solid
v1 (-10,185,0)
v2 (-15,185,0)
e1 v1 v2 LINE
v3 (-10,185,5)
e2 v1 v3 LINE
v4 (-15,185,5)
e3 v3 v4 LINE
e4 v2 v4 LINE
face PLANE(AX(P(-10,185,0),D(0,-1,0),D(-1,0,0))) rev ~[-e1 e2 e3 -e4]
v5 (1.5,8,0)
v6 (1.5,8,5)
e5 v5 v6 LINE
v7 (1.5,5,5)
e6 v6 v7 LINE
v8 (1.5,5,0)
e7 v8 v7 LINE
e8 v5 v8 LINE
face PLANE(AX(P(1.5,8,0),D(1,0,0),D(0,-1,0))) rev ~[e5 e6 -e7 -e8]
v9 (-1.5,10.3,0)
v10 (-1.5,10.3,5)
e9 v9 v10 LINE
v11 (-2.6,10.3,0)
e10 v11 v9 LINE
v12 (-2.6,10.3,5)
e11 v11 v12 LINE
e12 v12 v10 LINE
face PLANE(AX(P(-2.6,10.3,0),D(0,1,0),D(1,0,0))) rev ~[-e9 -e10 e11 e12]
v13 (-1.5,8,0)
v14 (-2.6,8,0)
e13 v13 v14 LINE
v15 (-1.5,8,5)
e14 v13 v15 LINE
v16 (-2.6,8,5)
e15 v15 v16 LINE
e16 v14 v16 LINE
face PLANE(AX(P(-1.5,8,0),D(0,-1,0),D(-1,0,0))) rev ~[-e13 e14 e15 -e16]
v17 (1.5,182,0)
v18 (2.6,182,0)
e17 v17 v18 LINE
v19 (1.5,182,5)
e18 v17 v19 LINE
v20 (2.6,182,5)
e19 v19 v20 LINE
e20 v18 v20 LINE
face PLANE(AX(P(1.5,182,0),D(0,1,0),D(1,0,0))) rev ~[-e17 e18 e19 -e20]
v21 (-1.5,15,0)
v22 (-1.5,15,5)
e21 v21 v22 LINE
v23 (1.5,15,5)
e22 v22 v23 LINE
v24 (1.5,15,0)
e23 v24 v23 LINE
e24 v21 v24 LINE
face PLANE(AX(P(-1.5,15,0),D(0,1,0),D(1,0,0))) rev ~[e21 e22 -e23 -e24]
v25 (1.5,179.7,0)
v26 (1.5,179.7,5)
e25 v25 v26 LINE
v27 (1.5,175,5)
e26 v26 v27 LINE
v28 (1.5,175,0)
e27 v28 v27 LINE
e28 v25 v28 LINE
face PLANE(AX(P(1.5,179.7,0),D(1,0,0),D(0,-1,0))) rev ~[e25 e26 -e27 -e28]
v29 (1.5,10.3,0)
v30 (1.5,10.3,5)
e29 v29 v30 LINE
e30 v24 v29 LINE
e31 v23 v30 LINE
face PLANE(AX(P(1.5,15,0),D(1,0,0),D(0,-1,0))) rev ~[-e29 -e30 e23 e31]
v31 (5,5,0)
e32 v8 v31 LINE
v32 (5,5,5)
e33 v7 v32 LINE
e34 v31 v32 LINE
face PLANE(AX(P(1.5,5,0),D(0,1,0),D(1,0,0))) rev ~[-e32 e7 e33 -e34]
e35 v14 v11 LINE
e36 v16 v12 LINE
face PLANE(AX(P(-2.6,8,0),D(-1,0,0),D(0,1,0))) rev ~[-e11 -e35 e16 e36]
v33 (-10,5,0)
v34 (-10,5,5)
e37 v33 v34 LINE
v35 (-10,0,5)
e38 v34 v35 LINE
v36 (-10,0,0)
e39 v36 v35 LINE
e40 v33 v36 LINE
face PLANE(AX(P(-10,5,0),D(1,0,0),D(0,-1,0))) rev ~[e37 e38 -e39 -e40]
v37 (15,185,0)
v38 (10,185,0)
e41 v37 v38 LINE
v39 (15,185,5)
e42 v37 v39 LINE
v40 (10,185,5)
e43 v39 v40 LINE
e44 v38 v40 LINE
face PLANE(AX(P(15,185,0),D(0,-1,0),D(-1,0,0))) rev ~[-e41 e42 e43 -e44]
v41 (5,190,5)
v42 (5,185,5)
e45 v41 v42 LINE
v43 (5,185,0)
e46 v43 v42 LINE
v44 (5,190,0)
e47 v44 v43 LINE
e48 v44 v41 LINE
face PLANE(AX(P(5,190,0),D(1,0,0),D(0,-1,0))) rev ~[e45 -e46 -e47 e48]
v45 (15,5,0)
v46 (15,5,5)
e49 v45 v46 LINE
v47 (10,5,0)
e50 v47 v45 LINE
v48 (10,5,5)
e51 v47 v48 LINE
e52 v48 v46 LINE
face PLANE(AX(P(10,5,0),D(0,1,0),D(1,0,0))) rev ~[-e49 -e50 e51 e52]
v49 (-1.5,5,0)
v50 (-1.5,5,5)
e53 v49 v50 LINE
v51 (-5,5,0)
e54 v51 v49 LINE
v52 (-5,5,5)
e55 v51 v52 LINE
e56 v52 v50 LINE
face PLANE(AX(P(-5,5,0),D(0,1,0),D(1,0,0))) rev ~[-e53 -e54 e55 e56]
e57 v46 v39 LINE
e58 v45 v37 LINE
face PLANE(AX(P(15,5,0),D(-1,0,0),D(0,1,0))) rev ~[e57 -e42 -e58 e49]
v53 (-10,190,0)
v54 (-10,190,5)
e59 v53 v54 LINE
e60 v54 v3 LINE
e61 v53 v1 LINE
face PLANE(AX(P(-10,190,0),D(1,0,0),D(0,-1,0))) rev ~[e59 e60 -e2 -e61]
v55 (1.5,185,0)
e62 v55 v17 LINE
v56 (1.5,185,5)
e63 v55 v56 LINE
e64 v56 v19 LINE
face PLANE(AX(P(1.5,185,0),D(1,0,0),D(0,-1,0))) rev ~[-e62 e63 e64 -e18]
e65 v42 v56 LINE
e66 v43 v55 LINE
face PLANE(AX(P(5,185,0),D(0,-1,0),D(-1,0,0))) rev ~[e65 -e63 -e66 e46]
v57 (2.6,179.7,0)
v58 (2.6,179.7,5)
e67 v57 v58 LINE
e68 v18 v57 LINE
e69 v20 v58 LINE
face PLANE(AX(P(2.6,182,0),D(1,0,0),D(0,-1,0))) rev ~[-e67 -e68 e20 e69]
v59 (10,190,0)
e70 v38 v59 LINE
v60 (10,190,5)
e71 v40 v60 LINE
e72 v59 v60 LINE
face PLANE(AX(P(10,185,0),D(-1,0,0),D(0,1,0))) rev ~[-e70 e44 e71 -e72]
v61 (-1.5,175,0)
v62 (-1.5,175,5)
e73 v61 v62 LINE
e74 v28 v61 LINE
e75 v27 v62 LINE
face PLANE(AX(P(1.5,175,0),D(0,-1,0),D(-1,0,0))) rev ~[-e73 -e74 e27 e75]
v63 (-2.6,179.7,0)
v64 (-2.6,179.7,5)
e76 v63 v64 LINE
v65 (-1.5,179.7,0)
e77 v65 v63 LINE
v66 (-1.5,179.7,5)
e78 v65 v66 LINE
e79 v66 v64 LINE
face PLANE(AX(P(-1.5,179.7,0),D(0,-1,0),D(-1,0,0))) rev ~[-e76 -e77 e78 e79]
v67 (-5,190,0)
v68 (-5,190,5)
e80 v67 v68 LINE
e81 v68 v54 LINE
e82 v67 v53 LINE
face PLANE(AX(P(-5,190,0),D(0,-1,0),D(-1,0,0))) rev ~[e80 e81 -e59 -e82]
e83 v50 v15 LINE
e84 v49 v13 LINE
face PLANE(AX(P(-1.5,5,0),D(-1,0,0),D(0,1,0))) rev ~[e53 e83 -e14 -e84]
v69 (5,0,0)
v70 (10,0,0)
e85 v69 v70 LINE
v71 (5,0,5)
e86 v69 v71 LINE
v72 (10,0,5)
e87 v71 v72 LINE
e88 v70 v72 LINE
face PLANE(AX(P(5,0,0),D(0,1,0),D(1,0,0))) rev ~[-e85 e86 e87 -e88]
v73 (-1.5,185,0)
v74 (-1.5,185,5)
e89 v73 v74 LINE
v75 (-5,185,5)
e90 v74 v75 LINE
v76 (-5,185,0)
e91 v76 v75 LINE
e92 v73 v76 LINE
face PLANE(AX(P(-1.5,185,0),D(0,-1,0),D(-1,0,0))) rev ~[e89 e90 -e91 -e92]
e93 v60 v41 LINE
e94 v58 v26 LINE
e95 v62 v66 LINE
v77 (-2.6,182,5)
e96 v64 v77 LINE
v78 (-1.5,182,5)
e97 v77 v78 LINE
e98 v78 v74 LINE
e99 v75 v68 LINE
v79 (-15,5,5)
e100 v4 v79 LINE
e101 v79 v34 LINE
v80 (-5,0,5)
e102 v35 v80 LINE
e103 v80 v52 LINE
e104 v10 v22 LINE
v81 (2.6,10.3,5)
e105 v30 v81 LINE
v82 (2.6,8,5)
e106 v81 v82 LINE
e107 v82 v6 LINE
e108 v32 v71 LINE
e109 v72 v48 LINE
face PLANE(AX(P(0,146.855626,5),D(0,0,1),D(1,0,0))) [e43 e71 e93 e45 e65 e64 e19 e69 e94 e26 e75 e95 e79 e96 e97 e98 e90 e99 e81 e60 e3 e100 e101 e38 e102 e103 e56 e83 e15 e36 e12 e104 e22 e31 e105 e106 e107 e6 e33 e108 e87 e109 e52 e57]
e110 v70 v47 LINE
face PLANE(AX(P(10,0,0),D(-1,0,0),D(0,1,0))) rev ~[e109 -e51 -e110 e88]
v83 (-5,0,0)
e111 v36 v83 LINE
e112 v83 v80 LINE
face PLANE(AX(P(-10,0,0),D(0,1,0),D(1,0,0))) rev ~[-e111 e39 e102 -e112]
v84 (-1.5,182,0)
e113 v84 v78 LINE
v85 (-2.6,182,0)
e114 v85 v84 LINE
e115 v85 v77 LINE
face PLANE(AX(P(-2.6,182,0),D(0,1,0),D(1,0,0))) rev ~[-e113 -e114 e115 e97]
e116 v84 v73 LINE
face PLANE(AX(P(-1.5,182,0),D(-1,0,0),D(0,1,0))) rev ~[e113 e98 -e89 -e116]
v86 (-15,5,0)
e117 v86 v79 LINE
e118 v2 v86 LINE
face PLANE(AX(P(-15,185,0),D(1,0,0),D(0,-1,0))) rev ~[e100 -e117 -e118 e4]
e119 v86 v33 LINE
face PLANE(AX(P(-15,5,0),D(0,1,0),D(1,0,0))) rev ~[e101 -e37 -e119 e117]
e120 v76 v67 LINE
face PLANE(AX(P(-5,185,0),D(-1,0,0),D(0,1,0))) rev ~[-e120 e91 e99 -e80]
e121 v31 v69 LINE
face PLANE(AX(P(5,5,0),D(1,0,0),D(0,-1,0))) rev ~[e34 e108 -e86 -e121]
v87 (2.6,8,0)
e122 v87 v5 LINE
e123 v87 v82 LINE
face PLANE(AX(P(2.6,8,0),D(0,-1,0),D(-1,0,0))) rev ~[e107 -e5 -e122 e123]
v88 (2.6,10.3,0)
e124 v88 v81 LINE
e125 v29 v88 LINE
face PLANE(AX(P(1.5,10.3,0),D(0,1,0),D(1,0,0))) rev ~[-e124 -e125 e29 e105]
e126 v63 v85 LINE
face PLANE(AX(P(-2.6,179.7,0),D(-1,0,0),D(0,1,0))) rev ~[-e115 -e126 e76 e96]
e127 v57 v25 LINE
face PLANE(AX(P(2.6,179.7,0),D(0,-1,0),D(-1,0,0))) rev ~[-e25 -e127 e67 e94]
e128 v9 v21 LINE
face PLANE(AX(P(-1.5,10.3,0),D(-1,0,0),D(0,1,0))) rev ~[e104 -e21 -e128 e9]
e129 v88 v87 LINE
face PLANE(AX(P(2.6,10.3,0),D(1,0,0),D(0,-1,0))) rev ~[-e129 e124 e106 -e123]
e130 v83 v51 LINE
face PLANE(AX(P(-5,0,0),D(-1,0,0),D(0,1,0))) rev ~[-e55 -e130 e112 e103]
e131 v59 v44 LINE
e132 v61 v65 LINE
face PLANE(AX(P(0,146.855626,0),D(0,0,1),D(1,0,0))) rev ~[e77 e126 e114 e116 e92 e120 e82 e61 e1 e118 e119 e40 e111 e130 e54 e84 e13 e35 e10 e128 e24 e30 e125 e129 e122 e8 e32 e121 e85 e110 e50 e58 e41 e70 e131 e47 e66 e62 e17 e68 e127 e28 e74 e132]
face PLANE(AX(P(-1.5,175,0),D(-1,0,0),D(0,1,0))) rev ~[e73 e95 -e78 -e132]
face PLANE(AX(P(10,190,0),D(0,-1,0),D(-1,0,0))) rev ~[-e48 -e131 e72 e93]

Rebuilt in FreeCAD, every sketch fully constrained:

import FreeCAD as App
import Part
import Sketcher

V = App.Vector
Q = App.Units.Quantity


def add_polygon(sketch, points):
    """Adds a closed chain of lines whose ends are joined by coincident constraints."""
    first, n = sketch.GeometryCount, len(points)
    for a, b in zip(points, points[1:] + points[:1]):
        sketch.addGeometry(Part.LineSegment(App.Vector(*a, 0), App.Vector(*b, 0)), False)
    for i in range(n):
        sketch.addConstraint(Sketcher.Constraint("Coincident", first + i, 2, first + (i + 1) % n, 1))

doc = App.newDocument("Part")
params = doc.addObject("Spreadsheet::Sheet", "Params")
for row, (alias, value) in enumerate([
    ("sketch1_width", "5 mm"),
    ("sketch1_width2", "3 mm"),
    ("sketch1_height", "180 mm"),
    ("sketch1_width3", "3.5 mm"),
    ("sketch1_width4", "1.1 mm"),
    ("pad1_length", "5 mm"),
], start=1):
    params.set(f"A{row}", alias)
    params.set(f"B{row}", "=" + value)
    params.setAlias(f"B{row}", alias)

body = doc.addObject("PartDesign::Body", "Body")

# Sketch on XY plane
sketch1 = body.newObject("Sketcher::SketchObject", "Sketch")
sketch1.AttachmentSupport = (doc.getObject("XY_Plane"), [""])
sketch1.MapMode = "FlatFace"
add_polygon(sketch1, [(-15, 185), (-15, 5), (-10, 5), (-10, 0), (-5, 0), (-5, 5), (-1.5, 5), (-1.5, 8), (-2.6, 8), (-2.6, 10.3), (-1.5, 10.3), (-1.5, 15), (1.5, 15), (1.5, 10.3), (2.6, 10.3), (2.6, 8), (1.5, 8), (1.5, 5), (5, 5), (5, 0), (10, 0), (10, 5), (15, 5), (15, 185), (10, 185), (10, 190), (5, 190), (5, 185), (1.5, 185), (1.5, 182), (2.6, 182), (2.6, 179.7), (1.5, 179.7), (1.5, 175), (-1.5, 175), (-1.5, 179.7), (-2.6, 179.7), (-2.6, 182), (-1.5, 182), (-1.5, 185), (-5, 185), (-5, 190), (-10, 190), (-10, 185)])  # lines 0-43
sketch1.addConstraint(Sketcher.Constraint("Vertical", 0))
sketch1.addConstraint(Sketcher.Constraint("Horizontal", 1))
sketch1.addConstraint(Sketcher.Constraint("Vertical", 2))
sketch1.addConstraint(Sketcher.Constraint("Horizontal", 3))
sketch1.addConstraint(Sketcher.Constraint("Vertical", 4))
sketch1.addConstraint(Sketcher.Constraint("Horizontal", 5))
sketch1.addConstraint(Sketcher.Constraint("Vertical", 6))
sketch1.addConstraint(Sketcher.Constraint("Horizontal", 7))
sketch1.addConstraint(Sketcher.Constraint("Vertical", 8))
sketch1.addConstraint(Sketcher.Constraint("Horizontal", 9))
sketch1.addConstraint(Sketcher.Constraint("Vertical", 10))
sketch1.addConstraint(Sketcher.Constraint("Horizontal", 11))
sketch1.addConstraint(Sketcher.Constraint("Vertical", 12))
sketch1.addConstraint(Sketcher.Constraint("Horizontal", 13))
sketch1.addConstraint(Sketcher.Constraint("Vertical", 14))
sketch1.addConstraint(Sketcher.Constraint("Horizontal", 15))
sketch1.addConstraint(Sketcher.Constraint("Vertical", 16))
sketch1.addConstraint(Sketcher.Constraint("Horizontal", 17))
sketch1.addConstraint(Sketcher.Constraint("Vertical", 18))
sketch1.addConstraint(Sketcher.Constraint("Horizontal", 19))
sketch1.addConstraint(Sketcher.Constraint("Vertical", 20))
sketch1.addConstraint(Sketcher.Constraint("Horizontal", 21))
sketch1.addConstraint(Sketcher.Constraint("Vertical", 22))
sketch1.addConstraint(Sketcher.Constraint("Horizontal", 23))
sketch1.addConstraint(Sketcher.Constraint("Vertical", 24))
sketch1.addConstraint(Sketcher.Constraint("Horizontal", 25))
sketch1.addConstraint(Sketcher.Constraint("Vertical", 26))
sketch1.addConstraint(Sketcher.Constraint("Horizontal", 27))
sketch1.addConstraint(Sketcher.Constraint("Vertical", 28))
sketch1.addConstraint(Sketcher.Constraint("Horizontal", 29))
sketch1.addConstraint(Sketcher.Constraint("Vertical", 30))
sketch1.addConstraint(Sketcher.Constraint("Horizontal", 31))
sketch1.addConstraint(Sketcher.Constraint("Vertical", 32))
sketch1.addConstraint(Sketcher.Constraint("Horizontal", 33))
sketch1.addConstraint(Sketcher.Constraint("Vertical", 34))
sketch1.addConstraint(Sketcher.Constraint("Horizontal", 35))
sketch1.addConstraint(Sketcher.Constraint("Vertical", 36))
sketch1.addConstraint(Sketcher.Constraint("Horizontal", 37))
sketch1.addConstraint(Sketcher.Constraint("Vertical", 38))
sketch1.addConstraint(Sketcher.Constraint("Horizontal", 39))
sketch1.addConstraint(Sketcher.Constraint("Vertical", 40))
sketch1.addConstraint(Sketcher.Constraint("Horizontal", 41))
sketch1.addConstraint(Sketcher.Constraint("Vertical", 42))
sketch1.addConstraint(Sketcher.Constraint("Horizontal", 43))
sketch1.addConstraint(Sketcher.Constraint("Symmetric", 3, 2, 18, 2, -1, 1))
sketch1.addConstraint(Sketcher.Constraint("Symmetric", 9, 2, 12, 2, -2))
sketch1.addConstraint(Sketcher.Constraint("Symmetric", 7, 2, 14, 2, -2))
sketch1.addConstraint(Sketcher.Constraint("Symmetric", 5, 2, 16, 2, -2))
sketch1.addConstraint(Sketcher.Constraint("Symmetric", 2, 2, 19, 2, -2))
sketch1.addConstraint(Sketcher.Constraint("Symmetric", 0, 2, 21, 2, -2))
sketch1.addConstraint(Sketcher.Constraint("Symmetric", 31, 2, 34, 2, -2))
sketch1.addConstraint(Sketcher.Constraint("Symmetric", 29, 2, 36, 2, -2))
sketch1.addConstraint(Sketcher.Constraint("Symmetric", 27, 2, 38, 2, -2))
sketch1.addConstraint(Sketcher.Constraint("Symmetric", 25, 2, 40, 2, -2))
sketch1.addConstraint(Sketcher.Constraint("Symmetric", 23, 2, 42, 2, -2))
sketch1.addConstraint(Sketcher.Constraint("Horizontal", 1, 2, 4, 2))
sketch1.addConstraint(Sketcher.Constraint("Horizontal", 23, 2, 26, 2))
sketch1.addConstraint(Sketcher.Constraint("Vertical", 6, 2, 9, 2))
sketch1.addConstraint(Sketcher.Constraint("Vertical", 20, 2, 23, 2))
sketch1.addConstraint(Sketcher.Constraint("Vertical", 18, 2, 25, 2))
sketch1.addConstraint(Sketcher.Constraint("Vertical", 16, 2, 27, 2))
sketch1.addConstraint(Sketcher.Constraint("Vertical", 14, 2, 29, 2))
sketch1.addConstraint(Sketcher.Constraint("Vertical", 28, 2, 31, 2))
sketch1.addConstraint(Sketcher.Constraint("Equal", 1, 3))
sketch1.addConstraint(Sketcher.Constraint("Equal", 43, 2))
sketch1.addConstraint(Sketcher.Constraint("Equal", 33, 6))
sketch1.addConstraint(Sketcher.Constraint("Equal", 20, 24))
sketch1.addConstraint(Sketcher.Constraint("Equal", 16, 28))
sketch1.addConstraint(Sketcher.Constraint("Equal", 14, 30))
sketch1.addConstraint(Sketcher.Constraint("Equal", 12, 32))
sketch1.addConstraint(Sketcher.Constraint("DistanceX", 1, 1, 1, 2, Q("5 mm")))
sketch1.addConstraint(Sketcher.Constraint("DistanceX", 11, 1, 11, 2, Q("3 mm")))
sketch1.addConstraint(Sketcher.Constraint("DistanceY", 0, 2, 0, 1, Q("180 mm")))
sketch1.addConstraint(Sketcher.Constraint("DistanceX", 5, 1, 5, 2, Q("3.5 mm")))
sketch1.addConstraint(Sketcher.Constraint("DistanceX", 7, 2, 7, 1, Q("1.1 mm")))
sketch1.addConstraint(Sketcher.Constraint("DistanceY", 8, 1, 8, 2, Q("2.3 mm")))
sketch1.addConstraint(Sketcher.Constraint("DistanceY", 10, 1, 10, 2, Q("4.7 mm")))
sketch1.setExpression("Constraints[114]", "Params.sketch1_width")
sketch1.setExpression("Constraints[115]", "Params.sketch1_width2")
sketch1.setExpression("Constraints[116]", "Params.sketch1_height")
sketch1.setExpression("Constraints[117]", "Params.sketch1_width3")
sketch1.setExpression("Constraints[118]", "Params.sketch1_width4")
pad1 = body.newObject("PartDesign::Pad", "Pad")
pad1.Profile = sketch1
pad1.setExpression("Length", "Params.pad1_length")

doc.recompute()
